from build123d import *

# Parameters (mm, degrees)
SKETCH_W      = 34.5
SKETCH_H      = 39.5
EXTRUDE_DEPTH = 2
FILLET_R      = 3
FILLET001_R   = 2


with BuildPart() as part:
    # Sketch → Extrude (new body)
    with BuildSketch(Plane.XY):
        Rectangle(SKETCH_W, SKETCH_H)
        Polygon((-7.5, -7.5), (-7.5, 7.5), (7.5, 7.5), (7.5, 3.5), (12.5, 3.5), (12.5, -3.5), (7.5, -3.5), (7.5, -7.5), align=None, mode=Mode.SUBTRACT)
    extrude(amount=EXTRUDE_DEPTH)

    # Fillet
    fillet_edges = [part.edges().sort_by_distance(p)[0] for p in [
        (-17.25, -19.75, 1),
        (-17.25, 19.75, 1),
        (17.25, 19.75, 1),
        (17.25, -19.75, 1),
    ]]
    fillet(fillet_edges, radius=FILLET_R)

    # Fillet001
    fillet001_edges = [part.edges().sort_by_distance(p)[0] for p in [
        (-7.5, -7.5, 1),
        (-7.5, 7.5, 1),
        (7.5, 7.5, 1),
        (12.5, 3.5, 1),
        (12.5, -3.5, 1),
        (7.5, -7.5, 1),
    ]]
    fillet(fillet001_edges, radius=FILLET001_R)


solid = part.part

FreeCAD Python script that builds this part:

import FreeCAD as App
import Part
import Sketcher
from FreeCAD import Vector


def edges_at(feature, points):
    """Names of the edges that pass closest to the given points."""
    edges = feature.Shape.Edges
    near = lambda p: min(range(len(edges)), key=lambda i: edges[i].distToShape(Part.Vertex(*p))[0])
    return sorted({f"Edge{near(p) + 1}" for p in points})


def add_polygon(sketch, points):
    """Adds a closed chain of lines whose ends are joined by coincident constraints."""
    first, n = sketch.GeometryCount, len(points)
    for a, b in zip(points, points[1:] + points[:1]):
        sketch.addGeometry(Part.LineSegment(App.Vector(*a, 0), App.Vector(*b, 0)), False)
    for i in range(n):
        sketch.addConstraint(Sketcher.Constraint("Coincident", first + i, 2, first + (i + 1) % n, 1))

doc = App.newDocument("Part")
params = doc.addObject("Spreadsheet::Sheet", "Params")
for row, (alias, value) in enumerate([
    ("sketch1_width", "15 mm"),
    ("sketch1_width2", "5 mm"),
    ("sketch1_height", "4 mm"),
    ("sketch1_width3", "34.5 mm"),
    ("sketch1_height2", "39.5 mm"),
    ("pad1_length", "2 mm"),
    ("fillet_radius", "3 mm"),
    ("fillet2_radius", "2 mm"),
], start=1):
    params.set(f"A{row}", alias)
    params.set(f"B{row}", "=" + value)
    params.setAlias(f"B{row}", alias)

body = doc.addObject("PartDesign::Body", "Body")

# Sketch on XY plane
sketch1 = body.newObject("Sketcher::SketchObject", "Sketch")
sketch1.AttachmentSupport = (doc.getObject("XY_Plane"), [""])
sketch1.MapMode = "FlatFace"
add_polygon(sketch1, [(-17.2, 19.8), (-17.2, -19.8), (17.2, -19.8), (17.2, 19.8)])  # lines 0-3
add_polygon(sketch1, [(7.5, -7.5), (-7.5, -7.5), (-7.5, 7.5), (7.5, 7.5), (7.5, 3.5), (12.5, 3.5), (12.5, -3.5), (7.5, -3.5)])  # lines 4-11
sketch1.addConstraint([
    Sketcher.Constraint("Vertical", 0),
    Sketcher.Constraint("Horizontal", 1),
    Sketcher.Constraint("Vertical", 2),
    Sketcher.Constraint("Horizontal", 3),
    Sketcher.Constraint("Horizontal", 4),
    Sketcher.Constraint("Vertical", 5),
    Sketcher.Constraint("Horizontal", 6),
    Sketcher.Constraint("Vertical", 7),
    Sketcher.Constraint("Horizontal", 8),
    Sketcher.Constraint("Vertical", 9),
    Sketcher.Constraint("Horizontal", 10),
    Sketcher.Constraint("Vertical", 11),
    Sketcher.Constraint("Symmetric", 0, 2, 2, 2, -1, 1),
    Sketcher.Constraint("Symmetric", 4, 2, 6, 2, -1, 1),
    Sketcher.Constraint("Symmetric", 7, 2, 10, 2, -1),
    Sketcher.Constraint("Equal", 6, 5),
    Sketcher.Constraint("DistanceX", 4, 2, 4, 1, 15.0),
    Sketcher.Constraint("DistanceX", 8, 1, 8, 2, 5.0),
    Sketcher.Constraint("DistanceY", 7, 2, 7, 1, 4.0),
    Sketcher.Constraint("DistanceX", 1, 1, 1, 2, 34.5),
    Sketcher.Constraint("DistanceY", 0, 2, 0, 1, 39.5),
])
sketch1.setExpression("Constraints[28]", "Params.sketch1_width")
sketch1.setExpression("Constraints[29]", "Params.sketch1_width2")
sketch1.setExpression("Constraints[30]", "Params.sketch1_height")
sketch1.setExpression("Constraints[31]", "Params.sketch1_width3")
sketch1.setExpression("Constraints[32]", "Params.sketch1_height2")
pad1 = body.newObject("PartDesign::Pad", "Pad")
pad1.Profile = sketch1
pad1.setExpression("Length", "Params.pad1_length")
doc.recompute()

fillet = body.newObject("PartDesign::Fillet", "Fillet")
fillet.Base = (pad1, edges_at(pad1, [
    (-17.25, -19.75, 1),
    (-17.25, 19.75, 1),
    (17.25, 19.75, 1),
    (17.25, -19.75, 1),
]))
fillet.setExpression("Radius", "Params.fillet_radius")
doc.recompute()

fillet2 = body.newObject("PartDesign::Fillet", "Fillet001")
fillet2.Base = (fillet, edges_at(fillet, [
    (-7.5, -7.5, 1),
    (-7.5, 7.5, 1),
    (7.5, 7.5, 1),
    (12.5, 3.5, 1),
    (12.5, -3.5, 1),
    (7.5, -7.5, 1),
]))
fillet2.setExpression("Radius", "Params.fillet2_radius")

doc.recompute()
